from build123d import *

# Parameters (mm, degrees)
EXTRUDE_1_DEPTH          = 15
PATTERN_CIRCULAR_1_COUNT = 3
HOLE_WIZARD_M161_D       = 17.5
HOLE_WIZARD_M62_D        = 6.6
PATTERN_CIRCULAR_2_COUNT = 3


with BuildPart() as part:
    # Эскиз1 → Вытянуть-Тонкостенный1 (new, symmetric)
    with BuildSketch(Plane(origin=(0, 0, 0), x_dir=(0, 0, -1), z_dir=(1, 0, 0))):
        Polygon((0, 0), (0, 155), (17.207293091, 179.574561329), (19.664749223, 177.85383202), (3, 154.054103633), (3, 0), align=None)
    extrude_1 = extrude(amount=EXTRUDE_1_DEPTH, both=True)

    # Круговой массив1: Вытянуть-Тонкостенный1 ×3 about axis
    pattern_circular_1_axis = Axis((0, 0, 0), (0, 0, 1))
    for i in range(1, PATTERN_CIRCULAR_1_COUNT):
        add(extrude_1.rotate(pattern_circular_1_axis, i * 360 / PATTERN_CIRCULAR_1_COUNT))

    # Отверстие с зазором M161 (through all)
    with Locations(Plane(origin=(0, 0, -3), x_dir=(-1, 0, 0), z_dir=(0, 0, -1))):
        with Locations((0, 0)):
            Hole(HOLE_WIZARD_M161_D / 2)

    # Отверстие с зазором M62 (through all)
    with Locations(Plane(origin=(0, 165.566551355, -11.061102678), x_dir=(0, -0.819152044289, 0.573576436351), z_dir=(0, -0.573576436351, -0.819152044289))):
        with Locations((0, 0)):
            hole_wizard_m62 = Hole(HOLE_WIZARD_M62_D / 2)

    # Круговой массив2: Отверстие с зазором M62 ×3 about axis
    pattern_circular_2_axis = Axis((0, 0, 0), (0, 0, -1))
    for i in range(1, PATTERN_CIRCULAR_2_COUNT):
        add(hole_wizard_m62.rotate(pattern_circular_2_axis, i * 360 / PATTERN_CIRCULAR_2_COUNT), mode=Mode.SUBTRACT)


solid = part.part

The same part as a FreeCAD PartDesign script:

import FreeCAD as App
import Part
import Sketcher

V = App.Vector
Q = App.Units.Quantity


def add_polygon(sketch, points):
    """Adds a closed chain of lines whose ends are joined by coincident constraints."""
    first, n = sketch.GeometryCount, len(points)
    for a, b in zip(points, points[1:] + points[:1]):
        sketch.addGeometry(Part.LineSegment(App.Vector(*a, 0), App.Vector(*b, 0)), False)
    for i in range(n):
        sketch.addConstraint(Sketcher.Constraint("Coincident", first + i, 2, first + (i + 1) % n, 1))

doc = App.newDocument("Part")
body = doc.addObject("PartDesign::Body", "Body")

sketch1 = body.newObject("Sketcher::SketchObject", "Sketch")
sketch1.AttachmentSupport = (doc.getObject("YZ_Plane"), [""])
sketch1.MapMode = "FlatFace"
add_polygon(sketch1, [(155, 0), (0, 0), (0, -3), (154.1, -3), (177.9, -19.7), (179.6, -17.2)])
sketch1.addConstraint(Sketcher.Constraint("Horizontal", 0))
sketch1.addConstraint(Sketcher.Constraint("Vertical", 1))
sketch1.addConstraint(Sketcher.Constraint("Horizontal", 2))
sketch1.addConstraint(Sketcher.Constraint("Coincident", 0, 2, -1, 1))
sketch1.addConstraint(Sketcher.Constraint("Perpendicular", 3, 4))
sketch1.addConstraint(Sketcher.Constraint("Perpendicular", 4, 5))
sketch1.addConstraint(Sketcher.Constraint("DistanceX", 0, 2, 0, 1, 155.0))
sketch1.addConstraint(Sketcher.Constraint("DistanceY", 1, 2, 1, 1, 3.0))
sketch1.addConstraint(Sketcher.Constraint("Angle", 3, Q("-35 deg")))
sketch1.addConstraint(Sketcher.Constraint("Distance", 4, 3.0))
sketch1.addConstraint(Sketcher.Constraint("Distance", 5, 30.0))
pad1 = body.newObject("PartDesign::Pad", "Pad")
pad1.Profile = sketch1
pad1.Length = 30
pad1.Midplane = True
doc.recompute()

polarpattern = body.newObject("PartDesign::PolarPattern", "PolarPattern")
polarpattern.Originals = [pad1]
polarpattern.Axis = (doc.getObject("Z_Axis"), [""])
polarpattern.Angle = 360
polarpattern.Occurrences = 3
body.Tip = polarpattern

sketch2 = body.newObject("Sketcher::SketchObject", "Sketch001")
sketch2.AttachmentSupport = (doc.getObject("XY_Plane"), [""])
sketch2.MapMode = "FlatFace"
sketch2.AttachmentOffset = App.Placement(V(0, 0, -3), App.Rotation())
sketch2.addGeometry(Part.Circle(V(0, 0, 0), V(0, 0, 1), 9), False)
sketch2.addConstraint(Sketcher.Constraint("Coincident", 0, 3, -1, 1))
sketch2.addConstraint(Sketcher.Constraint("Diameter", 0, 17.5))
doc.recompute()
hole = body.newObject("PartDesign::Hole", "Hole")
hole.Profile = sketch2
hole.ThreadType = "None"
hole.Diameter = 17.5
hole.DepthType = "ThroughAll"
hole.Reversed = True

sketch3 = body.newObject("Sketcher::SketchObject", "Sketch002")
sketch3.Placement = App.Placement(V(0, 49.27271, 70.368722), App.Rotation(V(0, -0.819152044, 0.573576436), V(-0.999999999, 0, 0), V(0, -0.573576436, -0.819152044), "ZXY"))
sketch3.addGeometry(Part.Circle(V(-142, 0, 0), V(0, 0, 1), 3.3), False)
sketch3.addConstraint(Sketcher.Constraint("PointOnObject", 0, 3, -1))
sketch3.addConstraint(Sketcher.Constraint("Diameter", 0, 6.6))
sketch3.addConstraint(Sketcher.Constraint("DistanceX", 0, 3, -1, 1, 141.968567))
doc.recompute()
hole2 = body.newObject("PartDesign::Hole", "Hole001")
hole2.Profile = sketch3
hole2.ThreadType = "None"
hole2.Diameter = 6.6
hole2.DepthType = "ThroughAll"
doc.recompute()

polarpattern2 = body.newObject("PartDesign::PolarPattern", "PolarPattern001")
polarpattern2.Originals = [hole2]
polarpattern2.Axis = (doc.getObject("Z_Axis"), [""])
polarpattern2.Angle = 360
polarpattern2.Occurrences = 3
body.Tip = polarpattern2

doc.recompute()
